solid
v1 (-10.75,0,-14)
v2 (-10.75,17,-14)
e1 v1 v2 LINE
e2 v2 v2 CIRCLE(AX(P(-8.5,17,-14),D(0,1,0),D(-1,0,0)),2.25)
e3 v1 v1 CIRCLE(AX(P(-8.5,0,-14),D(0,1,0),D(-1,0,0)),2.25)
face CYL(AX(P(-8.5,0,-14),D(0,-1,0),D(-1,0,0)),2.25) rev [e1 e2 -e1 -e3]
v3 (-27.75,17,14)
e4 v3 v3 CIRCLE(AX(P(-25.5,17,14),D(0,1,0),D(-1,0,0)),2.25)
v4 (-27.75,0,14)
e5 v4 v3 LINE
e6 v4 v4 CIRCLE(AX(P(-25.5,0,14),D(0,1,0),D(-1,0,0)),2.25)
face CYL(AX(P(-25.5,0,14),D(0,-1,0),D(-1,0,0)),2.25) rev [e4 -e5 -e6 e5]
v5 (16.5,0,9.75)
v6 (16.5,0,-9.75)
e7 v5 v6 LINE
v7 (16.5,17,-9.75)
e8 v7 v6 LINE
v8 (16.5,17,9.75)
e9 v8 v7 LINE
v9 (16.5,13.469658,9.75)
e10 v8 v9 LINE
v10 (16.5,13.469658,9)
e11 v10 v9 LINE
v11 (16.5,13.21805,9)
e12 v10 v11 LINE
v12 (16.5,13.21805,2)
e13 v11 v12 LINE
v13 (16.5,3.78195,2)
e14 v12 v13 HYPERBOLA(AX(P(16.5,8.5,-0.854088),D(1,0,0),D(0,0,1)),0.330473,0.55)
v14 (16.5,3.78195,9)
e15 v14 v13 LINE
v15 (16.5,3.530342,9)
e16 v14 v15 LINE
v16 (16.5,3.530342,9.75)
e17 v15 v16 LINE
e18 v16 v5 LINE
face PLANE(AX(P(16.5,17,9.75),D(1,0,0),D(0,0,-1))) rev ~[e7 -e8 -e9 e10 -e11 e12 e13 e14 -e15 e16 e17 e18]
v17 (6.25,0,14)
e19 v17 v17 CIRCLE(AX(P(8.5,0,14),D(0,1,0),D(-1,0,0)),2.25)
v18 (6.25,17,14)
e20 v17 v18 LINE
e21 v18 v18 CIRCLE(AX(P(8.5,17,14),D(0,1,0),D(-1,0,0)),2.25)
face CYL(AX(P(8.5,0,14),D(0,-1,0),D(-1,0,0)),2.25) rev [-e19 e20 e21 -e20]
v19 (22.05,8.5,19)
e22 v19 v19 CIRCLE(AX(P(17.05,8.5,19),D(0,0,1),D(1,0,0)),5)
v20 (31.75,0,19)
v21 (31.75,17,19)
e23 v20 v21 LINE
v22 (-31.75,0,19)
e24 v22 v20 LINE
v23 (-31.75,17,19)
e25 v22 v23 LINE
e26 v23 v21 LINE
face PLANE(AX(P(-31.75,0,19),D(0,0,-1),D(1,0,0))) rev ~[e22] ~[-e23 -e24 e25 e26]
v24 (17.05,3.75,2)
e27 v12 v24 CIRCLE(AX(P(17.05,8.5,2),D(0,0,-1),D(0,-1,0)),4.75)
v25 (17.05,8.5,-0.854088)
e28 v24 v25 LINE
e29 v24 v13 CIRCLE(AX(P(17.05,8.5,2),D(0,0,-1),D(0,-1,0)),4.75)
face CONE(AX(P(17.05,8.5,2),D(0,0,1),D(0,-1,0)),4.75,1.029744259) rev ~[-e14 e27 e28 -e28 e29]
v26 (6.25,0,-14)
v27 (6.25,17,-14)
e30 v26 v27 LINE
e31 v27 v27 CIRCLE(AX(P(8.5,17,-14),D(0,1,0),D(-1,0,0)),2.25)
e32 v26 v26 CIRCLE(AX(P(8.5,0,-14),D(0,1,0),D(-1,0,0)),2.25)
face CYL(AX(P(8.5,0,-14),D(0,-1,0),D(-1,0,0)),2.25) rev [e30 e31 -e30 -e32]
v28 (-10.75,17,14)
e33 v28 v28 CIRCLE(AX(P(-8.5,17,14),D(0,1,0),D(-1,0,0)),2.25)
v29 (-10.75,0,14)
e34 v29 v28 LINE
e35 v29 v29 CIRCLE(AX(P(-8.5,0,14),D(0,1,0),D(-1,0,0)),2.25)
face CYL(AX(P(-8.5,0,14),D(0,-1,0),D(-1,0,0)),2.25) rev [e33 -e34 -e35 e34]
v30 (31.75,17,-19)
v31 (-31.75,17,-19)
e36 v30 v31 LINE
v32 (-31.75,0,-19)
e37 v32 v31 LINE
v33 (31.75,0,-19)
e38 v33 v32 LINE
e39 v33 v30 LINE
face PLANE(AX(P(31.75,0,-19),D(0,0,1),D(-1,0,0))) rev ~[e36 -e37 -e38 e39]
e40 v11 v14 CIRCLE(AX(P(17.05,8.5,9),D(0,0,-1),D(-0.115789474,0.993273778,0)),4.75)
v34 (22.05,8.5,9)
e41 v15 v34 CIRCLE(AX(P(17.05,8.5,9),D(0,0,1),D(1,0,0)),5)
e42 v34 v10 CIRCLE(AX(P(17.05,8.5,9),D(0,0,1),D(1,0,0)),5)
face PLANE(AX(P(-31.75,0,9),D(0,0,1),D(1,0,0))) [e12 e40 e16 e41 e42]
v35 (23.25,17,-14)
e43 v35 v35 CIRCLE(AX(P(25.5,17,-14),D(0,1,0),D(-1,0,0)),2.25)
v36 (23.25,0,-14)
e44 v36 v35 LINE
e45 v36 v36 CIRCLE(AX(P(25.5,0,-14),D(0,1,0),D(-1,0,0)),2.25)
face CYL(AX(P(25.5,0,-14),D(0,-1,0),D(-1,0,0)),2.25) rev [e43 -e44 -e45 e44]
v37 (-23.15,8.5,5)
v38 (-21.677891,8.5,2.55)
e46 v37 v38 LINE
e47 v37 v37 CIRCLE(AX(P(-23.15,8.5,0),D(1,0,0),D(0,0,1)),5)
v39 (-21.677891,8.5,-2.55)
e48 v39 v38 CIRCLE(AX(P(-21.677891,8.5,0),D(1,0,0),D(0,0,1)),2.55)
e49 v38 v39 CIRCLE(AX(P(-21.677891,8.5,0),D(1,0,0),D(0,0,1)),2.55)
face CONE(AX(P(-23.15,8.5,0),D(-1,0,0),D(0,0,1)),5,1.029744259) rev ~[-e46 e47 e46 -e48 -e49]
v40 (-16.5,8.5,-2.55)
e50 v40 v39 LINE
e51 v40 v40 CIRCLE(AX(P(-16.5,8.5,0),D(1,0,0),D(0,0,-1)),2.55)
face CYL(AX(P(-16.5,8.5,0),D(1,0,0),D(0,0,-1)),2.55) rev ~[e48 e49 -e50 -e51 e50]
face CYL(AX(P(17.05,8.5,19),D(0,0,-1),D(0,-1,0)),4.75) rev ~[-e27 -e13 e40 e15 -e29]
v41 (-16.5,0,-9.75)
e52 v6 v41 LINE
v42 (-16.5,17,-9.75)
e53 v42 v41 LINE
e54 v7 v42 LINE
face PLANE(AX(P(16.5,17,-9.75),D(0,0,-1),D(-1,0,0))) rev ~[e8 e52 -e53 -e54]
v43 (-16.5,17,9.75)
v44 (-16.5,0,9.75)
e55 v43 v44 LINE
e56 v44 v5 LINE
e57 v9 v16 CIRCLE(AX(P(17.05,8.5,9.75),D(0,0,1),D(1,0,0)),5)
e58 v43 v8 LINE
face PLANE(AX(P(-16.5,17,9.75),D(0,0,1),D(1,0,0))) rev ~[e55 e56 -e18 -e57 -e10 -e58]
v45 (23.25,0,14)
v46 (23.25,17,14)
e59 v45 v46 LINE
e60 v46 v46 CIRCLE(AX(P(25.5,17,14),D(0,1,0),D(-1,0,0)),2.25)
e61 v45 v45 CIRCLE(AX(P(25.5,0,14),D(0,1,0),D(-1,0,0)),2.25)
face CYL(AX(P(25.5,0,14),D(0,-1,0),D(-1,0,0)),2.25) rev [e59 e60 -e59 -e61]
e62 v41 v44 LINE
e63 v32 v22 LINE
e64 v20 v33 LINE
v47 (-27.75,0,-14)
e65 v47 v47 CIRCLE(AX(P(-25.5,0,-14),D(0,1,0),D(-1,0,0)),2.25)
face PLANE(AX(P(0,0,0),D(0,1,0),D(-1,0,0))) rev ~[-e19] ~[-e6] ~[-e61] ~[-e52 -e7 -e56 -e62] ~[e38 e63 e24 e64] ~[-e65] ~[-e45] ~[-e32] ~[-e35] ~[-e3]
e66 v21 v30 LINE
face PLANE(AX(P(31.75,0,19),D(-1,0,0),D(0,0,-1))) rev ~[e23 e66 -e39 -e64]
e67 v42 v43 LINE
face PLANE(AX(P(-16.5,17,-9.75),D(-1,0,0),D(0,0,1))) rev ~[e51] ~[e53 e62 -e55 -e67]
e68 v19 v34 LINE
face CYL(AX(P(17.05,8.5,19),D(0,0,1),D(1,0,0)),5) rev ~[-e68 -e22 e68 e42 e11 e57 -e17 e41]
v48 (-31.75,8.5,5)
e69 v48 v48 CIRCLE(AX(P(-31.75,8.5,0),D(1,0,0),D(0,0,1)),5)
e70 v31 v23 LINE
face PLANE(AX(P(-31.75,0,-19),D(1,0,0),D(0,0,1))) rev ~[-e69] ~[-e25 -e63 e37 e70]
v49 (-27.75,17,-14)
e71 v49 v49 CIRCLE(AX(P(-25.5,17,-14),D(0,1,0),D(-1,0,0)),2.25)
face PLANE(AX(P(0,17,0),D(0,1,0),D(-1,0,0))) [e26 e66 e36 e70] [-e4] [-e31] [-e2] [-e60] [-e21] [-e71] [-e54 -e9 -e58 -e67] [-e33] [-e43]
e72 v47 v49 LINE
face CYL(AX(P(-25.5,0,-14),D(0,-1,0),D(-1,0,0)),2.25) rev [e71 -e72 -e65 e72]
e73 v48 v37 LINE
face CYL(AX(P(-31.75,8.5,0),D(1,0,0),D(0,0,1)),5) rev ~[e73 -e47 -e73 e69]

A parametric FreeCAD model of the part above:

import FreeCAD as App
import Part
import Sketcher
from FreeCAD import Vector

doc = App.newDocument("Part")
body = doc.addObject("PartDesign::Body", "Body")

# Sketch on XZ plane
sketch1 = body.newObject("Sketcher::SketchObject", "Sketch")
sketch1.AttachmentSupport = (doc.getObject("XZ_Plane"), [""])
sketch1.MapMode = "FlatFace"
sketch1.addGeometry([
    Part.LineSegment(Vector(-31.75, -19, 0), Vector(-31.75, 19, 0)),  # 0
    Part.LineSegment(Vector(-31.75, 19, 0), Vector(31.75, 19, 0)),  # 1
    Part.LineSegment(Vector(31.75, 19, 0), Vector(31.75, -19, 0)),  # 2
    Part.LineSegment(Vector(31.75, -19, 0), Vector(-31.75, -19, 0)),  # 3
    Part.Circle(Vector(25.5, -14, 0), Vector(0, 0, 1), 2.25),  # 4
    Part.Circle(Vector(8.5, -14, 0), Vector(0, 0, 1), 2.25),  # 5
    Part.Circle(Vector(-8.5, -14, 0), Vector(0, 0, 1), 2.25),  # 6
    Part.Circle(Vector(-25.5, -14, 0), Vector(0, 0, 1), 2.25),  # 7
    Part.Circle(Vector(25.5, 14, 0), Vector(0, 0, 1), 2.25),  # 8
    Part.Circle(Vector(8.5, 14, 0), Vector(0, 0, 1), 2.25),  # 9
    Part.Circle(Vector(-8.5, 14, 0), Vector(0, 0, 1), 2.25),  # 10
    Part.Circle(Vector(-25.5, 14, 0), Vector(0, 0, 1), 2.25),  # 11
], False)
sketch1.addConstraint([
    Sketcher.Constraint("Coincident", 0, 2, 1, 1),
    Sketcher.Constraint("Coincident", 1, 2, 2, 1),
    Sketcher.Constraint("Coincident", 2, 2, 3, 1),
    Sketcher.Constraint("Coincident", 3, 2, 0, 1),
    Sketcher.Constraint("Vertical", 0),
    Sketcher.Constraint("Horizontal", 1),
    Sketcher.Constraint("Vertical", 2),
    Sketcher.Constraint("Horizontal", 3),
    Sketcher.Constraint("Equal", 4, 5),
    Sketcher.Constraint("Equal", 5, 6),
    Sketcher.Constraint("Equal", 6, 7),
    Sketcher.Constraint("Equal", 7, 8),
    Sketcher.Constraint("Equal", 8, 9),
    Sketcher.Constraint("Equal", 9, 10),
    Sketcher.Constraint("Equal", 10, 11),
    Sketcher.Constraint("Symmetric", 7, 3, 8, 3, -1, 1),
    Sketcher.Constraint("Symmetric", 6, 3, 9, 3, -1, 1),
    Sketcher.Constraint("Symmetric", 5, 3, 10, 3, -1, 1),
    Sketcher.Constraint("Symmetric", 4, 3, 11, 3, -1, 1),
    Sketcher.Constraint("Symmetric", 0, 2, 2, 2, -1, 1),
    Sketcher.Constraint("Symmetric", 5, 3, 6, 3, -2),
    Sketcher.Constraint("Symmetric", 4, 3, 7, 3, -2),
    Sketcher.Constraint("Horizontal", 4, 3, 5, 3),
    Sketcher.Constraint("DistanceY", 0, 1, 0, 2, 38.0),
    Sketcher.Constraint("DistanceX", 1, 1, 1, 2, 63.5),
    Sketcher.Constraint("DistanceX", 5, 3, 4, 3, 17.0),
    Sketcher.Constraint("DistanceX", 6, 3, 5, 3, 17.0),
    Sketcher.Constraint("Diameter", 4, 4.5),
    Sketcher.Constraint("DistanceY", 4, 3, -1, 1, 14.0),
])
pad1 = body.newObject("PartDesign::Pad", "Pad")
pad1.Profile = sketch1
pad1.Length = 17
pad1.Reversed = True

# Sketch on XZ plane
sketch2 = body.newObject("Sketcher::SketchObject", "Sketch001")
sketch2.AttachmentSupport = (doc.getObject("XZ_Plane"), [""])
sketch2.MapMode = "FlatFace"
sketch2.AttachmentOffset = App.Placement(Vector(0, 0, -17), App.Rotation())
sketch2.addGeometry([
    Part.LineSegment(Vector(-16.5, -9.75, 0), Vector(-16.5, 9.75, 0)),
    Part.LineSegment(Vector(-16.5, 9.75, 0), Vector(16.5, 9.75, 0)),
    Part.LineSegment(Vector(16.5, 9.75, 0), Vector(16.5, -9.75, 0)),
    Part.LineSegment(Vector(16.5, -9.75, 0), Vector(-16.5, -9.75, 0)),
], False)
sketch2.addConstraint([
    Sketcher.Constraint("Coincident", 0, 2, 1, 1),
    Sketcher.Constraint("Coincident", 1, 2, 2, 1),
    Sketcher.Constraint("Coincident", 2, 2, 3, 1),
    Sketcher.Constraint("Coincident", 3, 2, 0, 1),
    Sketcher.Constraint("Vertical", 0),
    Sketcher.Constraint("Horizontal", 1),
    Sketcher.Constraint("Vertical", 2),
    Sketcher.Constraint("Horizontal", 3),
    Sketcher.Constraint("Symmetric", 0, 2, 2, 2, -1, 1),
    Sketcher.Constraint("DistanceX", 1, 1, 1, 2, 33.0),
    Sketcher.Constraint("DistanceY", 0, 1, 0, 2, 19.5),
])
pocket1 = body.newObject("PartDesign::Pocket", "Pocket")
pocket1.Profile = sketch2
pocket1.Type = "ThroughAll"
pocket1.Reversed = True

# Sketch on YZ plane
sketch3 = body.newObject("Sketcher::SketchObject", "Sketch002")
sketch3.AttachmentSupport = (doc.getObject("YZ_Plane"), [""])
sketch3.MapMode = "FlatFace"
sketch3.AttachmentOffset = App.Placement(Vector(0, 0, -31.75), App.Rotation())
sketch3.addGeometry(Part.Circle(Vector(8.5, 0, 0), Vector(0, 0, 1), 5), False)
sketch3.addConstraint([
    Sketcher.Constraint("PointOnObject", 0, 3, -1),
    Sketcher.Constraint("Diameter", 0, 10.0),
    Sketcher.Constraint("DistanceX", -1, 1, 0, 3, 8.5),
])
doc.recompute()
hole = body.newObject("PartDesign::Hole", "Hole")
hole.Profile = sketch3
hole.ThreadType = "None"
hole.Diameter = 10
hole.DepthType = "Dimension"
hole.Depth = 8.6
hole.DrillPoint = "Angled"
hole.DrillPointAngle = 118
hole.Reversed = True

# Sketch on YZ plane
sketch4 = body.newObject("Sketcher::SketchObject", "Sketch003")
sketch4.AttachmentSupport = (doc.getObject("YZ_Plane"), [""])
sketch4.MapMode = "FlatFace"
sketch4.AttachmentOffset = App.Placement(Vector(0, 0, -16.5), App.Rotation())
sketch4.addGeometry(Part.Circle(Vector(8.5, 0, 0), Vector(0, 0, 1), 2.55), False)
sketch4.addConstraint([
    Sketcher.Constraint("PointOnObject", 0, 3, -1),
    Sketcher.Constraint("Diameter", 0, 5.1),
    Sketcher.Constraint("DistanceX", -1, 1, 0, 3, 8.5),
])
pocket2 = body.newObject("PartDesign::Pocket", "Pocket001")
pocket2.Profile = sketch4
pocket2.Type = "ThroughAll"

# Sketch on XY plane
sketch5 = body.newObject("Sketcher::SketchObject", "Sketch004")
sketch5.AttachmentSupport = (doc.getObject("XY_Plane"), [""])
sketch5.MapMode = "FlatFace"
sketch5.AttachmentOffset = App.Placement(Vector(0, 0, 19), App.Rotation())
sketch5.addGeometry(Part.Circle(Vector(17.05, 8.5, 0), Vector(0, 0, 1), 5), False)
sketch5.addConstraint([
    Sketcher.Constraint("Diameter", 0, 10.0),
    Sketcher.Constraint("DistanceY", -1, 1, 0, 3, 8.5),
    Sketcher.Constraint("DistanceX", -1, 1, 0, 3, 17.05),
])
pocket3 = body.newObject("PartDesign::Pocket", "Pocket002")
pocket3.Profile = sketch5
pocket3.Length = 10

# Sketch on XY plane
sketch6 = body.newObject("Sketcher::SketchObject", "Sketch005")
sketch6.AttachmentSupport = (doc.getObject("XY_Plane"), [""])
sketch6.MapMode = "FlatFace"
sketch6.AttachmentOffset = App.Placement(Vector(0, 0, 19), App.Rotation())
sketch6.addGeometry(Part.Circle(Vector(17.05, 8.5, 0), Vector(0, 0, 1), 4.75), False)
sketch6.addConstraint([
    Sketcher.Constraint("Diameter", 0, 9.5),
    Sketcher.Constraint("DistanceY", -1, 1, 0, 3, 8.5),
    Sketcher.Constraint("DistanceX", -1, 1, 0, 3, 17.05),
])
doc.recompute()
hole2 = body.newObject("PartDesign::Hole", "Hole001")
hole2.Profile = sketch6
hole2.ThreadType = "None"
hole2.Diameter = 9.5
hole2.DepthType = "Dimension"
hole2.Depth = 17
hole2.DrillPoint = "Angled"
hole2.DrillPointAngle = 118

doc.recompute()
